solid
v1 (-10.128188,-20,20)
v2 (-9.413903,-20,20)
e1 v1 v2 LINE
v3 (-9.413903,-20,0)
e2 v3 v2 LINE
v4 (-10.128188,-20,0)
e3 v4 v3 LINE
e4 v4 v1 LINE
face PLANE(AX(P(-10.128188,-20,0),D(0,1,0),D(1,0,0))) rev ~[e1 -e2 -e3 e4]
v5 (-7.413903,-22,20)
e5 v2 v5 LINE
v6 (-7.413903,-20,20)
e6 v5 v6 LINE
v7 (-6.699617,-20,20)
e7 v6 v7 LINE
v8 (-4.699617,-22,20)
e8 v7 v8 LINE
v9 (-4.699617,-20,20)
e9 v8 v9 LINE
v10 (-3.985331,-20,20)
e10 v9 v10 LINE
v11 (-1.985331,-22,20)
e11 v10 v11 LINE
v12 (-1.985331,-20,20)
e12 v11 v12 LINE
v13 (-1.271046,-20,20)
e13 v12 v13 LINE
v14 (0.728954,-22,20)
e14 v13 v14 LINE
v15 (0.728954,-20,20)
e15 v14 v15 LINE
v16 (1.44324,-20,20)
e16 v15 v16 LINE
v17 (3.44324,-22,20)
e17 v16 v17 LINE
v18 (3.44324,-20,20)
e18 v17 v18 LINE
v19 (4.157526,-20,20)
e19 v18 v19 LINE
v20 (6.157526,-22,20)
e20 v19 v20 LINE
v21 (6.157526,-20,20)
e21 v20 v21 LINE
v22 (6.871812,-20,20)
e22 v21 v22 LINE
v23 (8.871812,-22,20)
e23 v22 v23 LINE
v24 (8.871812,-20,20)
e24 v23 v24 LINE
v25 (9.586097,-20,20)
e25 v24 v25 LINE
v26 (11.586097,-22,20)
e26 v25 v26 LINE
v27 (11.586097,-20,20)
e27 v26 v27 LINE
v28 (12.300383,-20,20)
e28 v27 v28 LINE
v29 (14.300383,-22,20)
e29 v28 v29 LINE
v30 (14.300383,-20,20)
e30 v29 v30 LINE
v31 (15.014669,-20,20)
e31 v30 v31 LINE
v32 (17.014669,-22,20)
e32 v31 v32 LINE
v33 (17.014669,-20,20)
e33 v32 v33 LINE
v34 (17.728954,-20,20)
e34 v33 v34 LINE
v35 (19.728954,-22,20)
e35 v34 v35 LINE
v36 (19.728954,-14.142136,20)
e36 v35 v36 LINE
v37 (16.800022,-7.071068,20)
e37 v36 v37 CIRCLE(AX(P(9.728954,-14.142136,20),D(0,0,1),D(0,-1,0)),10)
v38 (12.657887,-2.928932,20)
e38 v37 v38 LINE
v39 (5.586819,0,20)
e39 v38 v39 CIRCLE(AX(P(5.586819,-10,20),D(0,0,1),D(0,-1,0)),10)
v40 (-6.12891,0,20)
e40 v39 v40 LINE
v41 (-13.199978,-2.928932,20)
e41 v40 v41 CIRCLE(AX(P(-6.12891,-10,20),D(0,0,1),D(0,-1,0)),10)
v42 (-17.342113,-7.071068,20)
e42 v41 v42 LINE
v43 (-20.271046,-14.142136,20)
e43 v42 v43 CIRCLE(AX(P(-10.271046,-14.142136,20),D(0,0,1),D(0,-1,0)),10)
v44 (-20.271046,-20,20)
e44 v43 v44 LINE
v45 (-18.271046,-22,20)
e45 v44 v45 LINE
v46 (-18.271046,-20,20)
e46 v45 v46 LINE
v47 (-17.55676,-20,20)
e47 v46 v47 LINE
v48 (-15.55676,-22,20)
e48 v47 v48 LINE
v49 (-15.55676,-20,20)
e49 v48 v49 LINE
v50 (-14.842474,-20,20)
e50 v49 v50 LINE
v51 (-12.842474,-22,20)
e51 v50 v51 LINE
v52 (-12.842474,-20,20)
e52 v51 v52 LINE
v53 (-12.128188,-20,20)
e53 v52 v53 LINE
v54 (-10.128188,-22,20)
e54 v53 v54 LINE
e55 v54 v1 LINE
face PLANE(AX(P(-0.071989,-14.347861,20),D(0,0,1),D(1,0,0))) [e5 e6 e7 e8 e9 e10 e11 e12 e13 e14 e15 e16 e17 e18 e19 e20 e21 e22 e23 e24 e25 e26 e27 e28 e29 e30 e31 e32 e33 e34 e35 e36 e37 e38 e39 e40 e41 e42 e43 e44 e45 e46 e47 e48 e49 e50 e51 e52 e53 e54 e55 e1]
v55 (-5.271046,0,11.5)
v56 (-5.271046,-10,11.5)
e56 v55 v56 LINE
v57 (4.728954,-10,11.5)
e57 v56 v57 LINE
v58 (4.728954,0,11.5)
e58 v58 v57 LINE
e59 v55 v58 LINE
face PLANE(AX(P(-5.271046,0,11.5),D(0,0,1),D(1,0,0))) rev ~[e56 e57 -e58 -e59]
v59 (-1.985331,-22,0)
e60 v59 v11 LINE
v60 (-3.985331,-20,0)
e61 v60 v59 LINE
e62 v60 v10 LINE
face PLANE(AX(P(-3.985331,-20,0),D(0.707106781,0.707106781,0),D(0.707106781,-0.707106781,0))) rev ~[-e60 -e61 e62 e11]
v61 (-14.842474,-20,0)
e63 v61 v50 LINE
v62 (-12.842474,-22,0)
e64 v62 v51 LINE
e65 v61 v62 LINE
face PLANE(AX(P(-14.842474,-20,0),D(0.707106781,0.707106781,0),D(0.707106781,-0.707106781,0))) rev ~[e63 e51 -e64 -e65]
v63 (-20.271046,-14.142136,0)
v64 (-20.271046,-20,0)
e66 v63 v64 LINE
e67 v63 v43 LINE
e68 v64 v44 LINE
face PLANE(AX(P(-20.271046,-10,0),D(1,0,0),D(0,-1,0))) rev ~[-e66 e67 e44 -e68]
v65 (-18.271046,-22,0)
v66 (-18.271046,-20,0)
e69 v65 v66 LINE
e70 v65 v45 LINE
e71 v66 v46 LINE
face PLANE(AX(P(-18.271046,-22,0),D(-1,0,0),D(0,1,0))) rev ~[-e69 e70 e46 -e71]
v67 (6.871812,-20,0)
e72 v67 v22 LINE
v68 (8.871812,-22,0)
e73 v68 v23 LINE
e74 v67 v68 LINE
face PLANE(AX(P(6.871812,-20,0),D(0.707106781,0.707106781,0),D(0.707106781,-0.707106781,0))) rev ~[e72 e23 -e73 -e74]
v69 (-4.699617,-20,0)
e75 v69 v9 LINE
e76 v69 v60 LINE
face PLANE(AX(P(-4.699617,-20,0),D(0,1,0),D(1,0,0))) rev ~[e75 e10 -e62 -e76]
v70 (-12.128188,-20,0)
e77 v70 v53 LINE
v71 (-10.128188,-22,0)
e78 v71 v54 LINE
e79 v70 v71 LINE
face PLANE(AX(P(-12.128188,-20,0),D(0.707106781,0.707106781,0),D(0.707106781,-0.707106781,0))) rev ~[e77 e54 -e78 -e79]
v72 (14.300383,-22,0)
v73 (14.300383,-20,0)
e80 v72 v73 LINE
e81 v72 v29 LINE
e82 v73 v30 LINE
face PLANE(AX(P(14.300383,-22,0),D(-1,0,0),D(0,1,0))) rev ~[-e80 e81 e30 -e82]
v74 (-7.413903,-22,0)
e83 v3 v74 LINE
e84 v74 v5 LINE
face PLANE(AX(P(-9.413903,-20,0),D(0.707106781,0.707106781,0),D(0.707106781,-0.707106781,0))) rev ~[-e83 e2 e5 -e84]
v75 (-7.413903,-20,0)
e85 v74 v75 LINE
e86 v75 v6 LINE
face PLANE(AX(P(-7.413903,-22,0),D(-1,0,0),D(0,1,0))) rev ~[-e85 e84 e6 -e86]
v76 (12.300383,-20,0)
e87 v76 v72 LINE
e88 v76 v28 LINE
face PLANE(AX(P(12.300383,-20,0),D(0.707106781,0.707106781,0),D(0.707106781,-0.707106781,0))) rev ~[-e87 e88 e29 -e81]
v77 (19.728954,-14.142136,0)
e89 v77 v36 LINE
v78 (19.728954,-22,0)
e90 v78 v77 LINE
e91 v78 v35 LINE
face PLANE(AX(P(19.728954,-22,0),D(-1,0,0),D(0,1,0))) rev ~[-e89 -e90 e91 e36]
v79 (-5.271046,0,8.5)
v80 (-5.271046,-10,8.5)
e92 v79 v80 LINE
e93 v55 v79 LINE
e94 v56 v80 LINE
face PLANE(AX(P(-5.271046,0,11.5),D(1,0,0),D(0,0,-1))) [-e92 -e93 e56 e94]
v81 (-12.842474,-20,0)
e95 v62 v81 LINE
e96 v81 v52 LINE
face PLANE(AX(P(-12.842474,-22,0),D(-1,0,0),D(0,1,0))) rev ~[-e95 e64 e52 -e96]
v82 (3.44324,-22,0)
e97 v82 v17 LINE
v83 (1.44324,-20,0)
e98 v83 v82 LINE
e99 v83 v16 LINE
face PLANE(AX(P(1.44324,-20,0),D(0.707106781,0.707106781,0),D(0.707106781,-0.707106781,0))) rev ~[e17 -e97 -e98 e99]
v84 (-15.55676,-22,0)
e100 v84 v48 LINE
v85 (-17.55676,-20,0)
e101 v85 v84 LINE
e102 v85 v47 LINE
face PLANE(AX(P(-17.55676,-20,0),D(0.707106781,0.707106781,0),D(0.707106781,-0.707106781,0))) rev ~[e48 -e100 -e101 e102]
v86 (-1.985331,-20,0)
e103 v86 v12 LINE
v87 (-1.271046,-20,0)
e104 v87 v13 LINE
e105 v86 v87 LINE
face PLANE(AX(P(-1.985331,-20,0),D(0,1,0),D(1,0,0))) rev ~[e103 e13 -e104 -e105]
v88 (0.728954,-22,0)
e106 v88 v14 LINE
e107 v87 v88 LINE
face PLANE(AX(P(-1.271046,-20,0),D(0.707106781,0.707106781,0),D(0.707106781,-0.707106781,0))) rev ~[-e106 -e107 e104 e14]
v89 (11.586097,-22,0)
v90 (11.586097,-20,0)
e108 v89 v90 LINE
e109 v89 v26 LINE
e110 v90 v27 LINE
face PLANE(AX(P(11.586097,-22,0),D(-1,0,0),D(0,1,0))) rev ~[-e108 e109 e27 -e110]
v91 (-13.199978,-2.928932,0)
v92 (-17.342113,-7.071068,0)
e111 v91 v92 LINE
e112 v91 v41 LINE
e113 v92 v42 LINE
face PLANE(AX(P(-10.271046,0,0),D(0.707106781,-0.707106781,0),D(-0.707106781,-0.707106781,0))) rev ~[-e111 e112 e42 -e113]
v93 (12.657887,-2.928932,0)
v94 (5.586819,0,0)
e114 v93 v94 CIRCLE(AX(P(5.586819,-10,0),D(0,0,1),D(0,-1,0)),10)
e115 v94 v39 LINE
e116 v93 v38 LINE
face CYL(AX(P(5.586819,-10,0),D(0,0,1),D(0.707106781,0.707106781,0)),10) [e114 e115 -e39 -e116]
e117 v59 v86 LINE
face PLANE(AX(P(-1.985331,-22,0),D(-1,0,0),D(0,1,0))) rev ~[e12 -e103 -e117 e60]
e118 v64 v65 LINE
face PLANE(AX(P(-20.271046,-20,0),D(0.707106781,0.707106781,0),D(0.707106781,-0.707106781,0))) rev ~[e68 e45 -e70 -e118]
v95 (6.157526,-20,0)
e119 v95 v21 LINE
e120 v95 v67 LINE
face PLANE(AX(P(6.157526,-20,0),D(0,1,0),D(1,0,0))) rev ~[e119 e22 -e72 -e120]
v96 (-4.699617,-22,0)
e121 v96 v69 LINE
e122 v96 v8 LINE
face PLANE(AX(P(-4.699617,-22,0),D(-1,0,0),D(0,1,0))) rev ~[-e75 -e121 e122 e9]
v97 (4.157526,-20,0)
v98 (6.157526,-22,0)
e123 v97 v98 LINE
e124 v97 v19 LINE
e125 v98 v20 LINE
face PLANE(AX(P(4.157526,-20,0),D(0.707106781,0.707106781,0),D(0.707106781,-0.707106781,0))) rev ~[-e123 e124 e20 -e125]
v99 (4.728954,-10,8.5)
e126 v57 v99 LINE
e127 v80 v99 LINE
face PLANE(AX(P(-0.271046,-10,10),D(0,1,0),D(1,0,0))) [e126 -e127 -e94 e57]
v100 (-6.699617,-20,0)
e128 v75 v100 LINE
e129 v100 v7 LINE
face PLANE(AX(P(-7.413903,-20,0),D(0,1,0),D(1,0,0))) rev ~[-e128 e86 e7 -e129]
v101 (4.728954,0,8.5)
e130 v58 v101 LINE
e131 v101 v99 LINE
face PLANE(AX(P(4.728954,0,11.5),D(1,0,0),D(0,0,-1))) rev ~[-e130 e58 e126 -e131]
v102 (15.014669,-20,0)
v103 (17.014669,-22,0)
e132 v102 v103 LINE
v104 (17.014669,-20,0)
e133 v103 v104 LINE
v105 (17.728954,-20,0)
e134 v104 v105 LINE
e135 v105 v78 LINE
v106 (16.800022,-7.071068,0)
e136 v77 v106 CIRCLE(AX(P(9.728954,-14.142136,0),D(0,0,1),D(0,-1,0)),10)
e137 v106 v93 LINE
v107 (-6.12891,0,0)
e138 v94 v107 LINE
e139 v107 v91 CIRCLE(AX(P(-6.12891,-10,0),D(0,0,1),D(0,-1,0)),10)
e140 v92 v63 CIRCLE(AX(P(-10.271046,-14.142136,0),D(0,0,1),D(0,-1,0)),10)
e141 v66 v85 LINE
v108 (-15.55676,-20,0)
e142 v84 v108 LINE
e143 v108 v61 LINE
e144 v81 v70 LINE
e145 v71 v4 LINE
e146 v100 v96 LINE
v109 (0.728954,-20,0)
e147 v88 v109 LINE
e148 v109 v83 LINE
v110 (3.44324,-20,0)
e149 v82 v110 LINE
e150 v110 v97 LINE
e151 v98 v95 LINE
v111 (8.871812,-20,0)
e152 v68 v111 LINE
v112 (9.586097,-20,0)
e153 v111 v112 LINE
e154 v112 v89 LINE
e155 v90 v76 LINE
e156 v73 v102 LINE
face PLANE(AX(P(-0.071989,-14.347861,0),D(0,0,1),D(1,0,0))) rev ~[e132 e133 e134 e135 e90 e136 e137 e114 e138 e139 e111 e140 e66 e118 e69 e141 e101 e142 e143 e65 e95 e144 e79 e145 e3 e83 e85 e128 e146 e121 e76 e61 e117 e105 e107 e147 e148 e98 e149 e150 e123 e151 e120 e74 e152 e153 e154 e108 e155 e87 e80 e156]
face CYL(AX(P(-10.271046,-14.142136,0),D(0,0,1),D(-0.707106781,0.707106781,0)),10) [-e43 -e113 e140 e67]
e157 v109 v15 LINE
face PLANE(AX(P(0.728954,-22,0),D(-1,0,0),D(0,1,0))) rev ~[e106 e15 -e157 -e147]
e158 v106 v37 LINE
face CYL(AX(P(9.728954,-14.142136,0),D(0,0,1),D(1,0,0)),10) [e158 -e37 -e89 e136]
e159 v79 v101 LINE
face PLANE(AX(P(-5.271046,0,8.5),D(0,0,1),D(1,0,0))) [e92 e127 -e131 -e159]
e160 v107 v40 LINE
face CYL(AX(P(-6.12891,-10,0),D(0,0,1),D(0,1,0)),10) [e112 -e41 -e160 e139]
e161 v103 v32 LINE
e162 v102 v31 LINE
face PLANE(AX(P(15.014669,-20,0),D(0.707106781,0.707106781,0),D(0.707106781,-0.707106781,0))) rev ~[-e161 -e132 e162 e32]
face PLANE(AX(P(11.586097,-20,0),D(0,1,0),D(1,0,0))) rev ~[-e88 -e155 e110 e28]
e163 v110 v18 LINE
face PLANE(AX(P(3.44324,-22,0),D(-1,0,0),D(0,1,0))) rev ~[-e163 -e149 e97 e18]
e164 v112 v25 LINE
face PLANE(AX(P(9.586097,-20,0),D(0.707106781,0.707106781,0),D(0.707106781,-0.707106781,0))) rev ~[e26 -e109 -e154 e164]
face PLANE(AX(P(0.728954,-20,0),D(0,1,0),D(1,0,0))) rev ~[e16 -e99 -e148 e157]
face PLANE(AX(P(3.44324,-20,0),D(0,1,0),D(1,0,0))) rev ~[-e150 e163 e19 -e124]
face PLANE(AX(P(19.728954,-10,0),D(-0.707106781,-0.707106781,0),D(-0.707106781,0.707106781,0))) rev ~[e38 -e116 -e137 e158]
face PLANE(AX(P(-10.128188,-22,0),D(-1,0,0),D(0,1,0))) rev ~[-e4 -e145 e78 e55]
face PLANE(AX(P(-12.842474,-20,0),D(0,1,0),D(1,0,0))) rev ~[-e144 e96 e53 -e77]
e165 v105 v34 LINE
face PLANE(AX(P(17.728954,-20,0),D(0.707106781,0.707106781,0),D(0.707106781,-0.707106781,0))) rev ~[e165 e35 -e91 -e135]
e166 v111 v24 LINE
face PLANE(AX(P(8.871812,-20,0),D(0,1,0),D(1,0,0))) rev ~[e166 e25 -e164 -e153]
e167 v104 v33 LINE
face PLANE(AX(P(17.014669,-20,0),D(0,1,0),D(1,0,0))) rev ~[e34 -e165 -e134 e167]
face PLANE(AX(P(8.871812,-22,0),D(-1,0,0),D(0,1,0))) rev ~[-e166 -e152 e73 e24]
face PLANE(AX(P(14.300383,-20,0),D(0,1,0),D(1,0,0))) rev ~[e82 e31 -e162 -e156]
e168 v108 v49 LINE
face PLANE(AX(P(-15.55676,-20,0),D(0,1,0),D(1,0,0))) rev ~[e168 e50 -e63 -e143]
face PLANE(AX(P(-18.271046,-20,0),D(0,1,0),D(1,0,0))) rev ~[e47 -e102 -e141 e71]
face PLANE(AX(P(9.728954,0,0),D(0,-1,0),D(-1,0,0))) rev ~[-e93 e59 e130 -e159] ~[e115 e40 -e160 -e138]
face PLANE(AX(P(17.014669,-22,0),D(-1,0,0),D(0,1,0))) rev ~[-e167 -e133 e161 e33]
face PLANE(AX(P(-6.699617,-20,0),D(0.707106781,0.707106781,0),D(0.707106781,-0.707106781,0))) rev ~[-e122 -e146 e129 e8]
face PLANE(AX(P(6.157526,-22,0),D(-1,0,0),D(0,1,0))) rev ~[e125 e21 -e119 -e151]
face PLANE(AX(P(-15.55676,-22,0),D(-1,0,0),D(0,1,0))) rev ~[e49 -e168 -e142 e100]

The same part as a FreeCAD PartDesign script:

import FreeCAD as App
import Part
import Sketcher

V = App.Vector


def edges_at(feature, points):
    """Names of the edges that pass closest to the given points."""
    edges = feature.Shape.Edges
    near = lambda p: min(range(len(edges)), key=lambda i: edges[i].distToShape(Part.Vertex(*p))[0])
    return sorted({f"Edge{near(p) + 1}" for p in points})


def add_polygon(sketch, points):
    """Adds a closed chain of lines whose ends are joined by coincident constraints."""
    first, n = sketch.GeometryCount, len(points)
    for a, b in zip(points, points[1:] + points[:1]):
        sketch.addGeometry(Part.LineSegment(App.Vector(*a, 0), App.Vector(*b, 0)), False)
    for i in range(n):
        sketch.addConstraint(Sketcher.Constraint("Coincident", first + i, 2, first + (i + 1) % n, 1))

doc = App.newDocument("Part")
body = doc.addObject("PartDesign::Body", "Body")

sketch1 = doc.addObject("Sketcher::SketchObject", "Sketch")
body.addObject(sketch1)
sketch1.AttachmentSupport = (doc.XY_Plane, [""])
sketch1.MapMode = "FlatFace"
add_polygon(sketch1, [(17, -22), (17, -20), (17.7, -20), (19.7, -22), (19.7, -10), (9.7, 0), (-10.3, 0), (-20.3, -10), (-20.3, -20), (-18.3, -22), (-18.3, -20), (-17.6, -20), (-15.6, -22), (-15.6, -20), (-14.8, -20), (-12.8, -22), (-12.8, -20), (-12.1, -20), (-10.1, -22), (-10.1, -20), (-9.4, -20), (-7.4, -22), (-7.4, -20), (-6.7, -20), (-4.7, -22), (-4.7, -20), (-4, -20), (-2, -22), (-2, -20), (-1.3, -20), (0.7, -22), (0.7, -20), (1.4, -20), (3.4, -22), (3.4, -20), (4.2, -20), (6.2, -22), (6.2, -20), (6.9, -20), (8.9, -22), (8.9, -20), (9.6, -20), (11.6, -22), (11.6, -20), (12.3, -20), (14.3, -22), (14.3, -20), (15, -20)])
sketch1.addConstraint(Sketcher.Constraint("Vertical", 0))
sketch1.addConstraint(Sketcher.Constraint("Horizontal", 1))
sketch1.addConstraint(Sketcher.Constraint("Vertical", 3))
sketch1.addConstraint(Sketcher.Constraint("Horizontal", 5))
sketch1.addConstraint(Sketcher.Constraint("Vertical", 7))
sketch1.addConstraint(Sketcher.Constraint("Vertical", 9))
sketch1.addConstraint(Sketcher.Constraint("Horizontal", 10))
sketch1.addConstraint(Sketcher.Constraint("Vertical", 12))
sketch1.addConstraint(Sketcher.Constraint("Horizontal", 13))
sketch1.addConstraint(Sketcher.Constraint("Vertical", 15))
sketch1.addConstraint(Sketcher.Constraint("Horizontal", 16))
sketch1.addConstraint(Sketcher.Constraint("Vertical", 18))
sketch1.addConstraint(Sketcher.Constraint("Horizontal", 19))
sketch1.addConstraint(Sketcher.Constraint("Vertical", 21))
sketch1.addConstraint(Sketcher.Constraint("Horizontal", 22))
sketch1.addConstraint(Sketcher.Constraint("Vertical", 24))
sketch1.addConstraint(Sketcher.Constraint("Horizontal", 25))
sketch1.addConstraint(Sketcher.Constraint("Vertical", 27))
sketch1.addConstraint(Sketcher.Constraint("Horizontal", 28))
sketch1.addConstraint(Sketcher.Constraint("Vertical", 30))
sketch1.addConstraint(Sketcher.Constraint("Horizontal", 31))
sketch1.addConstraint(Sketcher.Constraint("Vertical", 33))
sketch1.addConstraint(Sketcher.Constraint("Horizontal", 34))
sketch1.addConstraint(Sketcher.Constraint("Vertical", 36))
sketch1.addConstraint(Sketcher.Constraint("Horizontal", 37))
sketch1.addConstraint(Sketcher.Constraint("Vertical", 39))
sketch1.addConstraint(Sketcher.Constraint("Horizontal", 40))
sketch1.addConstraint(Sketcher.Constraint("Vertical", 42))
sketch1.addConstraint(Sketcher.Constraint("Horizontal", 43))
sketch1.addConstraint(Sketcher.Constraint("Vertical", 45))
sketch1.addConstraint(Sketcher.Constraint("Horizontal", 46))
sketch1.addConstraint(Sketcher.Constraint("PointOnObject", 4, 2, -1))
sketch1.addConstraint(Sketcher.Constraint("Parallel", 2, 4))
sketch1.addConstraint(Sketcher.Constraint("Perpendicular", 4, 6))
sketch1.addConstraint(Sketcher.Constraint("Perpendicular", 6, 8))
sketch1.addConstraint(Sketcher.Constraint("Parallel", 8, 11))
sketch1.addConstraint(Sketcher.Constraint("Parallel", 11, 14))
sketch1.addConstraint(Sketcher.Constraint("Parallel", 14, 17))
sketch1.addConstraint(Sketcher.Constraint("Parallel", 17, 20))
sketch1.addConstraint(Sketcher.Constraint("Parallel", 20, 23))
sketch1.addConstraint(Sketcher.Constraint("Parallel", 23, 26))
sketch1.addConstraint(Sketcher.Constraint("Parallel", 26, 29))
sketch1.addConstraint(Sketcher.Constraint("Parallel", 29, 32))
sketch1.addConstraint(Sketcher.Constraint("Parallel", 32, 35))
sketch1.addConstraint(Sketcher.Constraint("Parallel", 35, 38))
sketch1.addConstraint(Sketcher.Constraint("Parallel", 38, 41))
sketch1.addConstraint(Sketcher.Constraint("Parallel", 41, 44))
sketch1.addConstraint(Sketcher.Constraint("Parallel", 44, 47))
sketch1.addConstraint(Sketcher.Constraint("Horizontal", 3, 2, 6, 2))
sketch1.addConstraint(Sketcher.Constraint("Horizontal", 1, 2, 7, 2))
sketch1.addConstraint(Sketcher.Constraint("Horizontal", 2, 2, 8, 2))
sketch1.addConstraint(Sketcher.Constraint("Horizontal", 7, 2, 9, 2))
sketch1.addConstraint(Sketcher.Constraint("Horizontal", 8, 2, 11, 2))
sketch1.addConstraint(Sketcher.Constraint("Horizontal", 10, 2, 12, 2))
sketch1.addConstraint(Sketcher.Constraint("Horizontal", 11, 2, 14, 2))
sketch1.addConstraint(Sketcher.Constraint("Horizontal", 13, 2, 15, 2))
sketch1.addConstraint(Sketcher.Constraint("Horizontal", 14, 2, 17, 2))
sketch1.addConstraint(Sketcher.Constraint("Horizontal", 16, 2, 18, 2))
sketch1.addConstraint(Sketcher.Constraint("Horizontal", 17, 2, 20, 2))
sketch1.addConstraint(Sketcher.Constraint("Horizontal", 19, 2, 21, 2))
sketch1.addConstraint(Sketcher.Constraint("Horizontal", 20, 2, 23, 2))
sketch1.addConstraint(Sketcher.Constraint("Horizontal", 22, 2, 24, 2))
sketch1.addConstraint(Sketcher.Constraint("Horizontal", 23, 2, 26, 2))
sketch1.addConstraint(Sketcher.Constraint("Horizontal", 25, 2, 27, 2))
sketch1.addConstraint(Sketcher.Constraint("Horizontal", 26, 2, 29, 2))
sketch1.addConstraint(Sketcher.Constraint("Horizontal", 28, 2, 30, 2))
sketch1.addConstraint(Sketcher.Constraint("Horizontal", 29, 2, 32, 2))
sketch1.addConstraint(Sketcher.Constraint("Horizontal", 31, 2, 33, 2))
sketch1.addConstraint(Sketcher.Constraint("Horizontal", 32, 2, 35, 2))
sketch1.addConstraint(Sketcher.Constraint("Horizontal", 34, 2, 36, 2))
sketch1.addConstraint(Sketcher.Constraint("Horizontal", 35, 2, 38, 2))
sketch1.addConstraint(Sketcher.Constraint("Horizontal", 37, 2, 39, 2))
sketch1.addConstraint(Sketcher.Constraint("Horizontal", 38, 2, 41, 2))
sketch1.addConstraint(Sketcher.Constraint("Horizontal", 40, 2, 42, 2))
sketch1.addConstraint(Sketcher.Constraint("Horizontal", 41, 2, 44, 2))
sketch1.addConstraint(Sketcher.Constraint("Horizontal", 43, 2, 45, 2))
sketch1.addConstraint(Sketcher.Constraint("Horizontal", 44, 2, 47, 2))
sketch1.addConstraint(Sketcher.Constraint("Equal", 1, 10))
sketch1.addConstraint(Sketcher.Constraint("Equal", 10, 13))
sketch1.addConstraint(Sketcher.Constraint("Equal", 13, 16))
sketch1.addConstraint(Sketcher.Constraint("Equal", 16, 19))
sketch1.addConstraint(Sketcher.Constraint("Equal", 19, 22))
sketch1.addConstraint(Sketcher.Constraint("Equal", 22, 25))
sketch1.addConstraint(Sketcher.Constraint("Equal", 25, 28))
sketch1.addConstraint(Sketcher.Constraint("Equal", 28, 31))
sketch1.addConstraint(Sketcher.Constraint("Equal", 31, 34))
sketch1.addConstraint(Sketcher.Constraint("Equal", 34, 37))
sketch1.addConstraint(Sketcher.Constraint("Equal", 37, 40))
sketch1.addConstraint(Sketcher.Constraint("Equal", 40, 43))
sketch1.addConstraint(Sketcher.Constraint("Equal", 43, 46))
sketch1.addConstraint(Sketcher.Constraint("Equal", 4, 6))
sketch1.addConstraint(Sketcher.Constraint("DistanceX", 5, 2, 5, 1, 20.0))
sketch1.addConstraint(Sketcher.Constraint("DistanceY", 0, 1, 0, 2, 2.0))
sketch1.addConstraint(Sketcher.Constraint("DistanceY", 3, 1, 3, 2, 12.0))
sketch1.addConstraint(Sketcher.Constraint("DistanceY", 0, 2, -1, 1, 20.0))
sketch1.addConstraint(Sketcher.Constraint("DistanceX", -1, 1, 0, 2, 17.014669))
pad1 = doc.addObject("PartDesign::Pad", "Pad")
body.addObject(pad1)
pad1.Profile = sketch1
pad1.Length = 20

sketch2 = doc.addObject("Sketcher::SketchObject", "Sketch001")
body.addObject(sketch2)
sketch2.AttachmentSupport = (doc.XZ_Plane, [""])
sketch2.MapMode = "FlatFace"
add_polygon(sketch2, [(-5.3, 8.5), (-5.3, 11.5), (4.7, 11.5), (4.7, 8.5)])
sketch2.addConstraint(Sketcher.Constraint("Vertical", 0))
sketch2.addConstraint(Sketcher.Constraint("Horizontal", 1))
sketch2.addConstraint(Sketcher.Constraint("Vertical", 2))
sketch2.addConstraint(Sketcher.Constraint("Horizontal", 3))
sketch2.addConstraint(Sketcher.Constraint("DistanceX", 1, 1, 1, 2, 10.0))
sketch2.addConstraint(Sketcher.Constraint("DistanceY", 0, 1, 0, 2, 3.0))
sketch2.addConstraint(Sketcher.Constraint("DistanceY", -1, 1, 0, 2, 11.5))
sketch2.addConstraint(Sketcher.Constraint("DistanceX", 0, 2, -1, 1, 5.271046))
pocket1 = doc.addObject("PartDesign::Pocket", "Pocket")
body.addObject(pocket1)
pocket1.Profile = sketch2
pocket1.Length = 10
pocket1.Reversed = True
doc.recompute()

fillet = doc.addObject("PartDesign::Fillet", "Fillet")
body.addObject(fillet)
fillet.Base = (pocket1, edges_at(pocket1, [
    (-20.271, -10, 10),
    (-10.271, 0, 10),
    (9.729, 0, 10),
    (19.729, -10, 10),
]))
fillet.Radius = 10

doc.recompute()
